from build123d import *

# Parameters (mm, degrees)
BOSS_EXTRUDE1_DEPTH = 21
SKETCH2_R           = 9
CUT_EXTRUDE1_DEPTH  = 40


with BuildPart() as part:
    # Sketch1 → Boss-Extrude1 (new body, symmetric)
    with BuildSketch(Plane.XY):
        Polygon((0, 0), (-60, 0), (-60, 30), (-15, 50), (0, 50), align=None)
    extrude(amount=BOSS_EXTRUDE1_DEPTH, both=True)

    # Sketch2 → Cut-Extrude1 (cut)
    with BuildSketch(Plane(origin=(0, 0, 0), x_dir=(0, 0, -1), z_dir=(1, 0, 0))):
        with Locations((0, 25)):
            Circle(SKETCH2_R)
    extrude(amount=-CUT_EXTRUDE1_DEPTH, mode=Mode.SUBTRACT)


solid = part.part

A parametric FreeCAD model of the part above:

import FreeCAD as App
import Part
import Sketcher

V = App.Vector
Q = App.Units.Quantity


def add_polygon(sketch, points):
    """Adds a closed chain of lines whose ends are joined by coincident constraints."""
    first, n = sketch.GeometryCount, len(points)
    for a, b in zip(points, points[1:] + points[:1]):
        sketch.addGeometry(Part.LineSegment(App.Vector(*a, 0), App.Vector(*b, 0)), False)
    for i in range(n):
        sketch.addConstraint(Sketcher.Constraint("Coincident", first + i, 2, first + (i + 1) % n, 1))

doc = App.newDocument("Part")
params = doc.addObject("Spreadsheet::Sheet", "Params")
for row, (alias, value) in enumerate([
    ("sketch1_width", "60 mm"),
    ("sketch1_width2", "15 mm"),
    ("sketch1_height", "50 mm"),
    ("sketch1_height2", "30 mm"),
    ("pad1_length", "42 mm"),
    ("sketch2_diameter", "18 mm"),
    ("pocket1_length", "40 mm"),
], start=1):
    params.set(f"A{row}", alias)
    params.set(f"B{row}", "=" + value)
    params.setAlias(f"B{row}", alias)

body = doc.addObject("PartDesign::Body", "Body")

sketch1 = body.newObject("Sketcher::SketchObject", "Sketch")
sketch1.AttachmentSupport = (doc.getObject("XY_Plane"), [""])
sketch1.MapMode = "FlatFace"
add_polygon(sketch1, [(-60, 0), (0, 0), (0, 50), (-15, 50), (-60, 30)])
sketch1.addConstraint([
    Sketcher.Constraint("Horizontal", 0),
    Sketcher.Constraint("Vertical", 1),
    Sketcher.Constraint("Horizontal", 2),
    Sketcher.Constraint("Vertical", 4),
    Sketcher.Constraint("Coincident", 0, 2, -1, 1),
    Sketcher.Constraint("DistanceX", 0, 1, 0, 2, Q("60 mm")),
    Sketcher.Constraint("DistanceX", 2, 2, 2, 1, Q("15 mm")),
    Sketcher.Constraint("DistanceY", 1, 1, 1, 2, Q("50 mm")),
    Sketcher.Constraint("DistanceY", 4, 2, 4, 1, Q("30 mm")),
])
sketch1.setExpression("Constraints[10]", "Params.sketch1_width")
sketch1.setExpression("Constraints[11]", "Params.sketch1_width2")
sketch1.setExpression("Constraints[12]", "Params.sketch1_height")
sketch1.setExpression("Constraints[13]", "Params.sketch1_height2")
pad1 = body.newObject("PartDesign::Pad", "Pad")
pad1.Profile = sketch1
pad1.setExpression("Length", "Params.pad1_length")
pad1.Midplane = True

sketch2 = body.newObject("Sketcher::SketchObject", "Sketch001")
sketch2.AttachmentSupport = (doc.getObject("YZ_Plane"), [""])
sketch2.MapMode = "FlatFace"
sketch2.addGeometry(Part.Circle(V(25, 0, 0), V(0, 0, 1), 9), False)
sketch2.addConstraint([
    Sketcher.Constraint("PointOnObject", 0, 3, -1),
    Sketcher.Constraint("Diameter", 0, Q("18 mm")),
    Sketcher.Constraint("DistanceX", -1, 1, 0, 3, Q("25 mm")),
])
sketch2.setExpression("Constraints[1]", "Params.sketch2_diameter")
pocket1 = body.newObject("PartDesign::Pocket", "Pocket")
pocket1.Profile = sketch2
pocket1.setExpression("Length", "Params.pocket1_length")

doc.recompute()
